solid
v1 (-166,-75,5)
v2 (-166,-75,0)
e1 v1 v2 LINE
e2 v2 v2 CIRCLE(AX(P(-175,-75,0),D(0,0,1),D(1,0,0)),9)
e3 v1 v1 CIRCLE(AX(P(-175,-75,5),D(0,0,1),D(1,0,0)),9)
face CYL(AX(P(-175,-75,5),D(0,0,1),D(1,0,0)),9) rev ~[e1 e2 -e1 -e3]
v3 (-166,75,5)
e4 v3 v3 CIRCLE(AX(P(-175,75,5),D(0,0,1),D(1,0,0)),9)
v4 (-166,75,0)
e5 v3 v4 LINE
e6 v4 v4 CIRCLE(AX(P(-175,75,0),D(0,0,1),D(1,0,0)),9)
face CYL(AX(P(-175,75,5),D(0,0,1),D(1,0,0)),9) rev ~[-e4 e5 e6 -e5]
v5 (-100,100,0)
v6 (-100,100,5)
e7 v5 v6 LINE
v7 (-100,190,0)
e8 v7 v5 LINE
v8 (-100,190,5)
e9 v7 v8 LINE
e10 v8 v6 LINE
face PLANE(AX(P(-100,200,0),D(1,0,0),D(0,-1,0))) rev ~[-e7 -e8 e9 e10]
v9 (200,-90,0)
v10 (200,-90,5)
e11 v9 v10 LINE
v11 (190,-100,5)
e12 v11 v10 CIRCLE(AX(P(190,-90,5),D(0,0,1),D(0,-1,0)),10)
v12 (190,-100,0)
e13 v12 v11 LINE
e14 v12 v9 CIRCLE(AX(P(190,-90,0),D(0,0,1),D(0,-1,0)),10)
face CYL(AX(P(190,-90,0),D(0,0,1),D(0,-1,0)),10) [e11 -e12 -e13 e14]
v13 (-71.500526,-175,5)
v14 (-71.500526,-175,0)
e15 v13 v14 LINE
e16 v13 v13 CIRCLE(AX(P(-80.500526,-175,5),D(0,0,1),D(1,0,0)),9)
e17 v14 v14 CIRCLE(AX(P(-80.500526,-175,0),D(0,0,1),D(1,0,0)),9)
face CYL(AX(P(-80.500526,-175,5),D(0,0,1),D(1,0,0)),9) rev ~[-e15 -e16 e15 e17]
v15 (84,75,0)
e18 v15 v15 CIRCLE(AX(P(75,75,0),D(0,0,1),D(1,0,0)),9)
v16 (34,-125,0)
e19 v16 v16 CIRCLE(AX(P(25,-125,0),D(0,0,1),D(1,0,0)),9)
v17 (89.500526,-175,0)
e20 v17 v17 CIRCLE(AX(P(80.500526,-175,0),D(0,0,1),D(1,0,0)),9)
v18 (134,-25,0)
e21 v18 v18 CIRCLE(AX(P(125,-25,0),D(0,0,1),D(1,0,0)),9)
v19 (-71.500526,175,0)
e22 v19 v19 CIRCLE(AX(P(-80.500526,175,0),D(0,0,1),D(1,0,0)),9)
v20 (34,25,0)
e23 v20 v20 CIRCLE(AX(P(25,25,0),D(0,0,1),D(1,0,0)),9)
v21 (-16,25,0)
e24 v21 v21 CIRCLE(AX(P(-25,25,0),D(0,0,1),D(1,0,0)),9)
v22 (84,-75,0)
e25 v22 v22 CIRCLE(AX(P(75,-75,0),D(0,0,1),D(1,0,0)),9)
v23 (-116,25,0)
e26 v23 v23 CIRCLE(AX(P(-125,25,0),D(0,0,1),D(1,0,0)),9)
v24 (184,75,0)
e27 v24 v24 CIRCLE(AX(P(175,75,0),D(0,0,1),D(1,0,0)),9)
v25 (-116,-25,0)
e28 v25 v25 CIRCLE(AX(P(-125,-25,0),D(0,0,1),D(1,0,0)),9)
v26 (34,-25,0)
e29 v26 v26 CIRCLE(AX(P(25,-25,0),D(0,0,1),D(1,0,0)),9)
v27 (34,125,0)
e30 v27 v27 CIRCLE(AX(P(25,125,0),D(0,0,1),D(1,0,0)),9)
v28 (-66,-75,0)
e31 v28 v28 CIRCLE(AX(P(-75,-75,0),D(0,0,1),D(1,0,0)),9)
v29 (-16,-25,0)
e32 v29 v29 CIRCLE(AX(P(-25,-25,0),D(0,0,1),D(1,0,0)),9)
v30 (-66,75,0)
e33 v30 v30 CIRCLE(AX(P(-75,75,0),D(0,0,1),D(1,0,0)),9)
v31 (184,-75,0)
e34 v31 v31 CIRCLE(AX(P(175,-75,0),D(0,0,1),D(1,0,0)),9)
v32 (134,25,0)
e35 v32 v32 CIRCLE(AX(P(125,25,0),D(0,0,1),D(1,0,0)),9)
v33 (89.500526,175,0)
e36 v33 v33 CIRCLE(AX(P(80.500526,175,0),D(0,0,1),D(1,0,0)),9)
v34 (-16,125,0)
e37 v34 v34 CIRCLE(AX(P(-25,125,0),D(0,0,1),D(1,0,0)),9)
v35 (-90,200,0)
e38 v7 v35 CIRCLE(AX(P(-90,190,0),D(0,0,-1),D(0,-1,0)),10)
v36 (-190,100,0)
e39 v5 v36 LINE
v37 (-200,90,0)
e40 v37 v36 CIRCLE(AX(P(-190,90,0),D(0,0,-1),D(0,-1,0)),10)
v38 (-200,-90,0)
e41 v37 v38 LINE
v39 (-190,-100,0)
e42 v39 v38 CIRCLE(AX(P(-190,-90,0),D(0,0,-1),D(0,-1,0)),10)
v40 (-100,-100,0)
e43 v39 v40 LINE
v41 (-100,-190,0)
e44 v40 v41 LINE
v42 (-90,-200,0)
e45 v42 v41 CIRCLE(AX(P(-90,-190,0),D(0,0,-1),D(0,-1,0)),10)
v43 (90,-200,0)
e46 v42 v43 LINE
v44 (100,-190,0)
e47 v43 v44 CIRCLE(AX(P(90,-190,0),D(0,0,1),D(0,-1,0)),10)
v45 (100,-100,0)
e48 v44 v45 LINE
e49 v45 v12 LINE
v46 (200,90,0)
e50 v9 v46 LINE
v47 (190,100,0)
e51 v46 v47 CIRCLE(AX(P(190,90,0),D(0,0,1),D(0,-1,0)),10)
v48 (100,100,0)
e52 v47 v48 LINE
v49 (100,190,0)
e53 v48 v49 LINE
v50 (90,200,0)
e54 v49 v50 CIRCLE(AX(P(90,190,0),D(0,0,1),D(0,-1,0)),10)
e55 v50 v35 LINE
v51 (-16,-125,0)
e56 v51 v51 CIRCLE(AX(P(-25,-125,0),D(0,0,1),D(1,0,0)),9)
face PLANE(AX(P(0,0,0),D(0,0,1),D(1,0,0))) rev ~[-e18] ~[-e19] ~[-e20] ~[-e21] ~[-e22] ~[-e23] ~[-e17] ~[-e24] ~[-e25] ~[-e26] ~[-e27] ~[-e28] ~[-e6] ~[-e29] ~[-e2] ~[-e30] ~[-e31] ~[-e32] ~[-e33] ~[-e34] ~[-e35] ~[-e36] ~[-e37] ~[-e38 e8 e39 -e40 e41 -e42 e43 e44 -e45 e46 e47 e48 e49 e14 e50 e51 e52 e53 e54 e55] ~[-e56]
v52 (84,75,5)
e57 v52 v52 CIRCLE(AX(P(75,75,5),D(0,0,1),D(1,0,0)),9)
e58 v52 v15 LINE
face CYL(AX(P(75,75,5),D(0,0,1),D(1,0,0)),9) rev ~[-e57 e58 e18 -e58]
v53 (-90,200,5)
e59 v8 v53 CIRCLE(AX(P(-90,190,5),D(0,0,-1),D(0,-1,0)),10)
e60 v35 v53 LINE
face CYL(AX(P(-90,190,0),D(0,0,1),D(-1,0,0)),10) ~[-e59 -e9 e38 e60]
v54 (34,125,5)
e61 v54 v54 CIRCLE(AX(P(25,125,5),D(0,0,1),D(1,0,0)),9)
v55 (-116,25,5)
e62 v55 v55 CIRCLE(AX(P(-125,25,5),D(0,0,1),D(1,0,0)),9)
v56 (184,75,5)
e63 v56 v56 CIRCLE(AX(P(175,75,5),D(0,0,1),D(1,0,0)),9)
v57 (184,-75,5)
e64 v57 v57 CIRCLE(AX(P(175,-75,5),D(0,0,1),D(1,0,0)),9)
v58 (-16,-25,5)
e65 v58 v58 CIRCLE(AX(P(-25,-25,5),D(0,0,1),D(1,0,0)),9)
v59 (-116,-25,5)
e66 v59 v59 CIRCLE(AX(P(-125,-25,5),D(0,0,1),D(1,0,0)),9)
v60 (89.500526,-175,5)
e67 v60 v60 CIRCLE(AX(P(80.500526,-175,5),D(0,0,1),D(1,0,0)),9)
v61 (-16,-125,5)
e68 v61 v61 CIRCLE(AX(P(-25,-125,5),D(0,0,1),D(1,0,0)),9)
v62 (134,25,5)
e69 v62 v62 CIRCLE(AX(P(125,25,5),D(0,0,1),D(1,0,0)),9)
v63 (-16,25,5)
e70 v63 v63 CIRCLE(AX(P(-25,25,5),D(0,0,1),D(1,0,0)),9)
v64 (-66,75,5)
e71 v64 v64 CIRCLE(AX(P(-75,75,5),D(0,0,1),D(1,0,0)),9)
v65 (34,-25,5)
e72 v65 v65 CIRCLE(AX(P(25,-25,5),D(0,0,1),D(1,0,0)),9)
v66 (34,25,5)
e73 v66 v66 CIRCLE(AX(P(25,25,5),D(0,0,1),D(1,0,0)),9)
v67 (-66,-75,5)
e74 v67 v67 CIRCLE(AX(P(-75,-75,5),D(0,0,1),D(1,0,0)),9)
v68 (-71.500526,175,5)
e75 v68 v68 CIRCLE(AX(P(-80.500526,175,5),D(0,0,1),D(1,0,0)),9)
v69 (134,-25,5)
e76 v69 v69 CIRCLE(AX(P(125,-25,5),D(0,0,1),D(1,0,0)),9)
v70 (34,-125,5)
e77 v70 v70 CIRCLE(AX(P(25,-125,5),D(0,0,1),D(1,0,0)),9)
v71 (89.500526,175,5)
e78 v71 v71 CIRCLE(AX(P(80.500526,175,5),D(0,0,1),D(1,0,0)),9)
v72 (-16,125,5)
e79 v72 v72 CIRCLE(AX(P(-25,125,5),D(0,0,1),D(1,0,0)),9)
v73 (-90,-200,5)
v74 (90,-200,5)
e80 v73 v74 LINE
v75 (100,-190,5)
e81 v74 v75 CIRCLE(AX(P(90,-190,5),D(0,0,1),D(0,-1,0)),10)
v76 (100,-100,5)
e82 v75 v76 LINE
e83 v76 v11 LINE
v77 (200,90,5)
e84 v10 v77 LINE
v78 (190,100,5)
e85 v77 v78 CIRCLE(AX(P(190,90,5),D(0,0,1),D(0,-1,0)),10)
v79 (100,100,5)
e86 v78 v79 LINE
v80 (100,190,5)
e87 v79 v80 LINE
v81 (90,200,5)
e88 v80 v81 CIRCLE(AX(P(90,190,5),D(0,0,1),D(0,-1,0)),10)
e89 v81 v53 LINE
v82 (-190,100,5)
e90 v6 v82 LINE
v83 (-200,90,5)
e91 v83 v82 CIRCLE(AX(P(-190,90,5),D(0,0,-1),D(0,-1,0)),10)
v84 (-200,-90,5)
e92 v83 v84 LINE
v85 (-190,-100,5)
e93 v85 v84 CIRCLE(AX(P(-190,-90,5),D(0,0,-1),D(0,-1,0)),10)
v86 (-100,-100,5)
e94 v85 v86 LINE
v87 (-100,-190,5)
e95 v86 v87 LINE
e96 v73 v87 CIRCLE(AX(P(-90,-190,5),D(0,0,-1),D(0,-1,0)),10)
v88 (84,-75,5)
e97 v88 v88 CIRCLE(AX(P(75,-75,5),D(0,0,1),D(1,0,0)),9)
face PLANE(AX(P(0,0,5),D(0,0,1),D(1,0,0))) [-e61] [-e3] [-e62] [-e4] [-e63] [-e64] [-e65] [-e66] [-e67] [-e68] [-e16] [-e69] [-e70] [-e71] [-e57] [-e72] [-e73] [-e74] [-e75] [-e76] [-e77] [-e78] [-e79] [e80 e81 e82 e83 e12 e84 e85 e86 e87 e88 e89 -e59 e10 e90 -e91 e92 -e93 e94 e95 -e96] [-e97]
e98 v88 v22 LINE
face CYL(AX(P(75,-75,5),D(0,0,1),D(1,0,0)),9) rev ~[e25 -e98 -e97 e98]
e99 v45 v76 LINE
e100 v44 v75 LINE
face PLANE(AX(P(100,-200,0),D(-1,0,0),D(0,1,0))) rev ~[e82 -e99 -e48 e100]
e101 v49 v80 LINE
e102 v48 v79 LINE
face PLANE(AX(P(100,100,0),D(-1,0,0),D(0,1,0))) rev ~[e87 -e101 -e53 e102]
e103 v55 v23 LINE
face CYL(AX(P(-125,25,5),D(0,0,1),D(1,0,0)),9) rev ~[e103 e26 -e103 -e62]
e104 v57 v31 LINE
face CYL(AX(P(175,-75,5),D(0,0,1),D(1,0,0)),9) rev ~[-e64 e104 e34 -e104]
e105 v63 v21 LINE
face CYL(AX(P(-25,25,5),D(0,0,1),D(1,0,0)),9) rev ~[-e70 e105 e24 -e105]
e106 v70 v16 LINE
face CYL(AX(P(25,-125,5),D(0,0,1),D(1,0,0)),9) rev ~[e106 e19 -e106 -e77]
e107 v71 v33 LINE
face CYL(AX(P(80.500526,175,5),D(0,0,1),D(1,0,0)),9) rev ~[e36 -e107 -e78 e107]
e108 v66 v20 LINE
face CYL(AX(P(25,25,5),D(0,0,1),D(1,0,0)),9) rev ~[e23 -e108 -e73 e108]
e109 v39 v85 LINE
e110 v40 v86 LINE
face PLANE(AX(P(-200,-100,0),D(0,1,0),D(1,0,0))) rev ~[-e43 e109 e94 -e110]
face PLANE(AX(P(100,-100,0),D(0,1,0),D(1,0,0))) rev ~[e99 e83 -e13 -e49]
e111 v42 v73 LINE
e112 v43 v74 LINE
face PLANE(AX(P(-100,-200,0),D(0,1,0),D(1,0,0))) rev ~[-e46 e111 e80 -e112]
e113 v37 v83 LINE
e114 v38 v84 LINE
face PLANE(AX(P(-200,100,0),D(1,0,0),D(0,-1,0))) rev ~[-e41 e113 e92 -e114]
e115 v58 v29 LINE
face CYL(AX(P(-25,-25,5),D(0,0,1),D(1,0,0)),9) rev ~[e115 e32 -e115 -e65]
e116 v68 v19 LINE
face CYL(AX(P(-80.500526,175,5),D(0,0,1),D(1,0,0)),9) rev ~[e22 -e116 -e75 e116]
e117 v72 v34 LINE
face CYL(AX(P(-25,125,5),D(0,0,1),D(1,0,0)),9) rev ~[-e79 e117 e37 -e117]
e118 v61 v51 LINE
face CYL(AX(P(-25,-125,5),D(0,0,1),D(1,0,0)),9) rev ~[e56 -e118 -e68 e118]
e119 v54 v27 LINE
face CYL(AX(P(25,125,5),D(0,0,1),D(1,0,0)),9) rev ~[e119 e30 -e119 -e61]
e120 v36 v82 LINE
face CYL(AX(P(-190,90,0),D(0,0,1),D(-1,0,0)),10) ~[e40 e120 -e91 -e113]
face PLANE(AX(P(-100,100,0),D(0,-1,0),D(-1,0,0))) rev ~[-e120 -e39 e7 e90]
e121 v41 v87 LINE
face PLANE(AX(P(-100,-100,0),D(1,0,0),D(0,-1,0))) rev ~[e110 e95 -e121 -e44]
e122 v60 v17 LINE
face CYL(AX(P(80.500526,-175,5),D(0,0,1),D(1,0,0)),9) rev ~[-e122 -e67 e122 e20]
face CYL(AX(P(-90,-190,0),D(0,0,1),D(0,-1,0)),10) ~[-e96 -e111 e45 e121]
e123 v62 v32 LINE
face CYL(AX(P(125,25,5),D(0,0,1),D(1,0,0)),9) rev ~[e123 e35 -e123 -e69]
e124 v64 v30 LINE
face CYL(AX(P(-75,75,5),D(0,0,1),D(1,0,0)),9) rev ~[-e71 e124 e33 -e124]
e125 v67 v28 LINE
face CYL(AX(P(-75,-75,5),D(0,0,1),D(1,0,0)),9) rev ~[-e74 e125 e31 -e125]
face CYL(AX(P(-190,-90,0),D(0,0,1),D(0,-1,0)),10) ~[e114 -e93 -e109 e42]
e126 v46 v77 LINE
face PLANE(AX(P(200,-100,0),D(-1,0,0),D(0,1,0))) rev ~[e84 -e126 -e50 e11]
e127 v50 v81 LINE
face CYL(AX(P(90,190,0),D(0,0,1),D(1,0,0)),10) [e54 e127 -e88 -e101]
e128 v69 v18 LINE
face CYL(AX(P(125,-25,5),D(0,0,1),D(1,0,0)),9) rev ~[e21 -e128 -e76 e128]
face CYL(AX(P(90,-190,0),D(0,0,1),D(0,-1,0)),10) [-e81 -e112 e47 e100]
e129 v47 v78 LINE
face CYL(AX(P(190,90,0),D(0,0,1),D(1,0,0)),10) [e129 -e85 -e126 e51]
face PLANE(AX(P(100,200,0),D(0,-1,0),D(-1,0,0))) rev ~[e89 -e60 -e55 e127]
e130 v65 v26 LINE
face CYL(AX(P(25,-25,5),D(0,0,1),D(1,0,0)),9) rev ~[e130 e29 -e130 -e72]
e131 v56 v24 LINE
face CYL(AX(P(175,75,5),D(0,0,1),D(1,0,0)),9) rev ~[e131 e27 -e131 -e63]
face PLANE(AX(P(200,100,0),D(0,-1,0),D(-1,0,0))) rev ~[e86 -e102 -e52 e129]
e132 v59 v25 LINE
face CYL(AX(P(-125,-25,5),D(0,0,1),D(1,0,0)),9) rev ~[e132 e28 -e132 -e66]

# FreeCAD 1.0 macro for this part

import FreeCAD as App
import Part
import Sketcher
from FreeCAD import Vector
Q = App.Units.Quantity


def edges_at(feature, points):
    """Names of the edges that pass closest to the given points."""
    edges = feature.Shape.Edges
    near = lambda p: min(range(len(edges)), key=lambda i: edges[i].distToShape(Part.Vertex(*p))[0])
    return sorted({f"Edge{near(p) + 1}" for p in points})


def add_polygon(sketch, points):
    """Adds a closed chain of lines whose ends are joined by coincident constraints."""
    first, n = sketch.GeometryCount, len(points)
    for a, b in zip(points, points[1:] + points[:1]):
        sketch.addGeometry(Part.LineSegment(App.Vector(*a, 0), App.Vector(*b, 0)), False)
    for i in range(n):
        sketch.addConstraint(Sketcher.Constraint("Coincident", first + i, 2, first + (i + 1) % n, 1))

doc = App.newDocument("Part")
params = doc.addObject("Spreadsheet::Sheet", "Params")
for row, (alias, value) in enumerate([
    ("sketch1_width", "200 mm"),
    ("sketch1_width2", "100 mm"),
    ("pad1_length", "5 mm"),
    ("sketch2_diameter", "18 mm"),
    ("pocket1_length", "25 mm"),
    ("fillet_radius", "10 mm"),
], start=1):
    params.set(f"A{row}", alias)
    params.set(f"B{row}", "=" + value)
    params.setAlias(f"B{row}", alias)

body = doc.addObject("PartDesign::Body", "Body")

# Sketch on XY plane
sketch1 = doc.addObject("Sketcher::SketchObject", "Sketch")
body.addObject(sketch1)
sketch1.AttachmentSupport = (doc.XY_Plane, [""])
sketch1.MapMode = "FlatFace"
add_polygon(sketch1, [(-100, -200), (100, -200), (100, -100), (200, -100), (200, 100), (100, 100), (100, 200), (-100, 200), (-100, 100), (-200, 100), (-200, -100), (-100, -100)])  # lines 0-11
sketch1.addConstraint(Sketcher.Constraint("Horizontal", 0))
sketch1.addConstraint(Sketcher.Constraint("Vertical", 1))
sketch1.addConstraint(Sketcher.Constraint("Horizontal", 2))
sketch1.addConstraint(Sketcher.Constraint("Vertical", 3))
sketch1.addConstraint(Sketcher.Constraint("Horizontal", 4))
sketch1.addConstraint(Sketcher.Constraint("Vertical", 5))
sketch1.addConstraint(Sketcher.Constraint("Horizontal", 6))
sketch1.addConstraint(Sketcher.Constraint("Vertical", 7))
sketch1.addConstraint(Sketcher.Constraint("Horizontal", 8))
sketch1.addConstraint(Sketcher.Constraint("Vertical", 9))
sketch1.addConstraint(Sketcher.Constraint("Horizontal", 10))
sketch1.addConstraint(Sketcher.Constraint("Vertical", 11))
sketch1.addConstraint(Sketcher.Constraint("Symmetric", 0, 2, 6, 2, -1, 1))
sketch1.addConstraint(Sketcher.Constraint("Symmetric", 2, 2, 8, 2, -1, 1))
sketch1.addConstraint(Sketcher.Constraint("Symmetric", 4, 2, 10, 2, -1, 1))
sketch1.addConstraint(Sketcher.Constraint("Symmetric", 4, 2, 7, 2, -2))
sketch1.addConstraint(Sketcher.Constraint("Equal", 10, 1))
sketch1.addConstraint(Sketcher.Constraint("Equal", 6, 3))
sketch1.addConstraint(Sketcher.Constraint("DistanceX", 0, 1, 0, 2, Q("200 mm")))
sketch1.addConstraint(Sketcher.Constraint("DistanceX", 2, 1, 2, 2, Q("100 mm")))
sketch1.setExpression("Constraints[30]", "Params.sketch1_width")
sketch1.setExpression("Constraints[31]", "Params.sketch1_width2")
pad1 = doc.addObject("PartDesign::Pad", "Pad")
body.addObject(pad1)
pad1.Profile = sketch1
pad1.setExpression("Length", "Params.pad1_length")

# Sketch on XY plane
sketch2 = doc.addObject("Sketcher::SketchObject", "Sketch001")
body.addObject(sketch2)
sketch2.AttachmentSupport = (doc.XY_Plane, [""])
sketch2.MapMode = "FlatFace"
sketch2.AttachmentOffset = App.Placement(Vector(0, 0, 5), App.Rotation())
sketch2.addGeometry(Part.Circle(Vector(25, 25, 0), Vector(0, 0, 1), 9), False)
sketch2.addGeometry(Part.Circle(Vector(75, 75, 0), Vector(0, 0, 1), 9), False)
sketch2.addGeometry(Part.Circle(Vector(125, 25, 0), Vector(0, 0, 1), 9), False)
sketch2.addGeometry(Part.Circle(Vector(175, 75, 0), Vector(0, 0, 1), 9), False)
sketch2.addGeometry(Part.Circle(Vector(25, 125, 0), Vector(0, 0, 1), 9), False)
sketch2.addGeometry(Part.Circle(Vector(81, 175, 0), Vector(0, 0, 1), 9), False)
sketch2.addGeometry(Part.Circle(Vector(81, -175, 0), Vector(0, 0, 1), 9), False)
sketch2.addGeometry(Part.Circle(Vector(25, -125, 0), Vector(0, 0, 1), 9), False)
sketch2.addGeometry(Part.Circle(Vector(175, -75, 0), Vector(0, 0, 1), 9), False)
sketch2.addGeometry(Part.Circle(Vector(75, -75, 0), Vector(0, 0, 1), 9), False)
sketch2.addGeometry(Part.Circle(Vector(125, -25, 0), Vector(0, 0, 1), 9), False)
sketch2.addGeometry(Part.Circle(Vector(25, -25, 0), Vector(0, 0, 1), 9), False)
sketch2.addGeometry(Part.Circle(Vector(-25, -125, 0), Vector(0, 0, 1), 9), False)
sketch2.addGeometry(Part.Circle(Vector(-175, 75, 0), Vector(0, 0, 1), 9), False)
sketch2.addGeometry(Part.Circle(Vector(-175, -75, 0), Vector(0, 0, 1), 9), False)
sketch2.addGeometry(Part.Circle(Vector(-81, 175, 0), Vector(0, 0, 1), 9), False)
sketch2.addGeometry(Part.Circle(Vector(-25, 25, 0), Vector(0, 0, 1), 9), False)
sketch2.addGeometry(Part.Circle(Vector(-125, 25, 0), Vector(0, 0, 1), 9), False)
sketch2.addGeometry(Part.Circle(Vector(-125, -25, 0), Vector(0, 0, 1), 9), False)
sketch2.addGeometry(Part.Circle(Vector(-81, -175, 0), Vector(0, 0, 1), 9), False)
sketch2.addGeometry(Part.Circle(Vector(-25, -25, 0), Vector(0, 0, 1), 9), False)
sketch2.addGeometry(Part.Circle(Vector(-25, 125, 0), Vector(0, 0, 1), 9), False)
sketch2.addGeometry(Part.Circle(Vector(-75, 75, 0), Vector(0, 0, 1), 9), False)
sketch2.addGeometry(Part.Circle(Vector(-75, -75, 0), Vector(0, 0, 1), 9), False)
sketch2.addConstraint(Sketcher.Constraint("Equal", 0, 1))
sketch2.addConstraint(Sketcher.Constraint("Equal", 1, 2))
sketch2.addConstraint(Sketcher.Constraint("Equal", 2, 3))
sketch2.addConstraint(Sketcher.Constraint("Equal", 3, 4))
sketch2.addConstraint(Sketcher.Constraint("Equal", 4, 5))
sketch2.addConstraint(Sketcher.Constraint("Equal", 5, 6))
sketch2.addConstraint(Sketcher.Constraint("Equal", 6, 7))
sketch2.addConstraint(Sketcher.Constraint("Equal", 7, 8))
sketch2.addConstraint(Sketcher.Constraint("Equal", 8, 9))
sketch2.addConstraint(Sketcher.Constraint("Equal", 9, 10))
sketch2.addConstraint(Sketcher.Constraint("Equal", 10, 11))
sketch2.addConstraint(Sketcher.Constraint("Equal", 11, 12))
sketch2.addConstraint(Sketcher.Constraint("Equal", 12, 13))
sketch2.addConstraint(Sketcher.Constraint("Equal", 13, 14))
sketch2.addConstraint(Sketcher.Constraint("Equal", 14, 15))
sketch2.addConstraint(Sketcher.Constraint("Equal", 15, 16))
sketch2.addConstraint(Sketcher.Constraint("Equal", 16, 17))
sketch2.addConstraint(Sketcher.Constraint("Equal", 17, 18))
sketch2.addConstraint(Sketcher.Constraint("Equal", 18, 19))
sketch2.addConstraint(Sketcher.Constraint("Equal", 19, 20))
sketch2.addConstraint(Sketcher.Constraint("Equal", 20, 21))
sketch2.addConstraint(Sketcher.Constraint("Equal", 21, 22))
sketch2.addConstraint(Sketcher.Constraint("Equal", 22, 23))
sketch2.addConstraint(Sketcher.Constraint("Symmetric", 4, 3, 12, 3, -1, 1))
sketch2.addConstraint(Sketcher.Constraint("Symmetric", 8, 3, 13, 3, -1, 1))
sketch2.addConstraint(Sketcher.Constraint("Symmetric", 3, 3, 14, 3, -1, 1))
sketch2.addConstraint(Sketcher.Constraint("Symmetric", 6, 3, 15, 3, -1, 1))
sketch2.addConstraint(Sketcher.Constraint("Symmetric", 11, 3, 16, 3, -1, 1))
sketch2.addConstraint(Sketcher.Constraint("Symmetric", 10, 3, 17, 3, -1, 1))
sketch2.addConstraint(Sketcher.Constraint("Symmetric", 2, 3, 18, 3, -1, 1))
sketch2.addConstraint(Sketcher.Constraint("Symmetric", 5, 3, 19, 3, -1, 1))
sketch2.addConstraint(Sketcher.Constraint("Symmetric", 0, 3, 20, 3, -1, 1))
sketch2.addConstraint(Sketcher.Constraint("Symmetric", 7, 3, 21, 3, -1, 1))
sketch2.addConstraint(Sketcher.Constraint("Symmetric", 9, 3, 22, 3, -1, 1))
sketch2.addConstraint(Sketcher.Constraint("Symmetric", 1, 3, 23, 3, -1, 1))
sketch2.addConstraint(Sketcher.Constraint("Symmetric", 7, 3, 12, 3, -2))
sketch2.addConstraint(Sketcher.Constraint("Symmetric", 3, 3, 13, 3, -2))
sketch2.addConstraint(Sketcher.Constraint("Symmetric", 5, 3, 15, 3, -2))
sketch2.addConstraint(Sketcher.Constraint("Symmetric", 0, 3, 16, 3, -2))
sketch2.addConstraint(Sketcher.Constraint("Symmetric", 2, 3, 17, 3, -2))
sketch2.addConstraint(Sketcher.Constraint("Symmetric", 1, 3, 22, 3, -2))
sketch2.addConstraint(Sketcher.Constraint("Horizontal", 0, 3, 2, 3))
sketch2.addConstraint(Sketcher.Constraint("Horizontal", 1, 3, 3, 3))
sketch2.addConstraint(Sketcher.Constraint("Vertical", 0, 3, 4, 3))
sketch2.addConstraint(Sketcher.Constraint("Diameter", 0, Q("18 mm")))
sketch2.addConstraint(Sketcher.Constraint("DistanceX", -1, 1, 0, 3, Q("25 mm")))
sketch2.addConstraint(Sketcher.Constraint("DistanceY", -1, 1, 0, 3, Q("25 mm")))
sketch2.addConstraint(Sketcher.Constraint("DistanceX", -1, 1, 1, 3, Q("75 mm")))
sketch2.addConstraint(Sketcher.Constraint("DistanceY", -1, 1, 1, 3, Q("75 mm")))
sketch2.addConstraint(Sketcher.Constraint("DistanceX", -1, 1, 2, 3, Q("125 mm")))
sketch2.addConstraint(Sketcher.Constraint("DistanceX", -1, 1, 3, 3, Q("175 mm")))
sketch2.addConstraint(Sketcher.Constraint("DistanceY", -1, 1, 4, 3, Q("125 mm")))
sketch2.addConstraint(Sketcher.Constraint("DistanceY", -1, 1, 5, 3, Q("175 mm")))
sketch2.addConstraint(Sketcher.Constraint("DistanceX", 15, 3, 5, 3, Q("161.001052 mm")))
sketch2.setExpression("Constraints[44]", "Params.sketch2_diameter")
pocket1 = doc.addObject("PartDesign::Pocket", "Pocket")
body.addObject(pocket1)
pocket1.Profile = sketch2
pocket1.setExpression("Length", "Params.pocket1_length")
doc.recompute()

fillet = doc.addObject("PartDesign::Fillet", "Fillet")
body.addObject(fillet)
fillet.Base = (pocket1, edges_at(pocket1, [
    (100, -200, 2.5),
    (-100, -200, 2.5),
    (-200, -100, 2.5),
    (-200, 100, 2.5),
    (-100, 200, 2.5),
    (100, 200, 2.5),
    (200, 100, 2.5),
    (200, -100, 2.5),
]))
fillet.setExpression("Radius", "Params.fillet_radius")

doc.recompute()
